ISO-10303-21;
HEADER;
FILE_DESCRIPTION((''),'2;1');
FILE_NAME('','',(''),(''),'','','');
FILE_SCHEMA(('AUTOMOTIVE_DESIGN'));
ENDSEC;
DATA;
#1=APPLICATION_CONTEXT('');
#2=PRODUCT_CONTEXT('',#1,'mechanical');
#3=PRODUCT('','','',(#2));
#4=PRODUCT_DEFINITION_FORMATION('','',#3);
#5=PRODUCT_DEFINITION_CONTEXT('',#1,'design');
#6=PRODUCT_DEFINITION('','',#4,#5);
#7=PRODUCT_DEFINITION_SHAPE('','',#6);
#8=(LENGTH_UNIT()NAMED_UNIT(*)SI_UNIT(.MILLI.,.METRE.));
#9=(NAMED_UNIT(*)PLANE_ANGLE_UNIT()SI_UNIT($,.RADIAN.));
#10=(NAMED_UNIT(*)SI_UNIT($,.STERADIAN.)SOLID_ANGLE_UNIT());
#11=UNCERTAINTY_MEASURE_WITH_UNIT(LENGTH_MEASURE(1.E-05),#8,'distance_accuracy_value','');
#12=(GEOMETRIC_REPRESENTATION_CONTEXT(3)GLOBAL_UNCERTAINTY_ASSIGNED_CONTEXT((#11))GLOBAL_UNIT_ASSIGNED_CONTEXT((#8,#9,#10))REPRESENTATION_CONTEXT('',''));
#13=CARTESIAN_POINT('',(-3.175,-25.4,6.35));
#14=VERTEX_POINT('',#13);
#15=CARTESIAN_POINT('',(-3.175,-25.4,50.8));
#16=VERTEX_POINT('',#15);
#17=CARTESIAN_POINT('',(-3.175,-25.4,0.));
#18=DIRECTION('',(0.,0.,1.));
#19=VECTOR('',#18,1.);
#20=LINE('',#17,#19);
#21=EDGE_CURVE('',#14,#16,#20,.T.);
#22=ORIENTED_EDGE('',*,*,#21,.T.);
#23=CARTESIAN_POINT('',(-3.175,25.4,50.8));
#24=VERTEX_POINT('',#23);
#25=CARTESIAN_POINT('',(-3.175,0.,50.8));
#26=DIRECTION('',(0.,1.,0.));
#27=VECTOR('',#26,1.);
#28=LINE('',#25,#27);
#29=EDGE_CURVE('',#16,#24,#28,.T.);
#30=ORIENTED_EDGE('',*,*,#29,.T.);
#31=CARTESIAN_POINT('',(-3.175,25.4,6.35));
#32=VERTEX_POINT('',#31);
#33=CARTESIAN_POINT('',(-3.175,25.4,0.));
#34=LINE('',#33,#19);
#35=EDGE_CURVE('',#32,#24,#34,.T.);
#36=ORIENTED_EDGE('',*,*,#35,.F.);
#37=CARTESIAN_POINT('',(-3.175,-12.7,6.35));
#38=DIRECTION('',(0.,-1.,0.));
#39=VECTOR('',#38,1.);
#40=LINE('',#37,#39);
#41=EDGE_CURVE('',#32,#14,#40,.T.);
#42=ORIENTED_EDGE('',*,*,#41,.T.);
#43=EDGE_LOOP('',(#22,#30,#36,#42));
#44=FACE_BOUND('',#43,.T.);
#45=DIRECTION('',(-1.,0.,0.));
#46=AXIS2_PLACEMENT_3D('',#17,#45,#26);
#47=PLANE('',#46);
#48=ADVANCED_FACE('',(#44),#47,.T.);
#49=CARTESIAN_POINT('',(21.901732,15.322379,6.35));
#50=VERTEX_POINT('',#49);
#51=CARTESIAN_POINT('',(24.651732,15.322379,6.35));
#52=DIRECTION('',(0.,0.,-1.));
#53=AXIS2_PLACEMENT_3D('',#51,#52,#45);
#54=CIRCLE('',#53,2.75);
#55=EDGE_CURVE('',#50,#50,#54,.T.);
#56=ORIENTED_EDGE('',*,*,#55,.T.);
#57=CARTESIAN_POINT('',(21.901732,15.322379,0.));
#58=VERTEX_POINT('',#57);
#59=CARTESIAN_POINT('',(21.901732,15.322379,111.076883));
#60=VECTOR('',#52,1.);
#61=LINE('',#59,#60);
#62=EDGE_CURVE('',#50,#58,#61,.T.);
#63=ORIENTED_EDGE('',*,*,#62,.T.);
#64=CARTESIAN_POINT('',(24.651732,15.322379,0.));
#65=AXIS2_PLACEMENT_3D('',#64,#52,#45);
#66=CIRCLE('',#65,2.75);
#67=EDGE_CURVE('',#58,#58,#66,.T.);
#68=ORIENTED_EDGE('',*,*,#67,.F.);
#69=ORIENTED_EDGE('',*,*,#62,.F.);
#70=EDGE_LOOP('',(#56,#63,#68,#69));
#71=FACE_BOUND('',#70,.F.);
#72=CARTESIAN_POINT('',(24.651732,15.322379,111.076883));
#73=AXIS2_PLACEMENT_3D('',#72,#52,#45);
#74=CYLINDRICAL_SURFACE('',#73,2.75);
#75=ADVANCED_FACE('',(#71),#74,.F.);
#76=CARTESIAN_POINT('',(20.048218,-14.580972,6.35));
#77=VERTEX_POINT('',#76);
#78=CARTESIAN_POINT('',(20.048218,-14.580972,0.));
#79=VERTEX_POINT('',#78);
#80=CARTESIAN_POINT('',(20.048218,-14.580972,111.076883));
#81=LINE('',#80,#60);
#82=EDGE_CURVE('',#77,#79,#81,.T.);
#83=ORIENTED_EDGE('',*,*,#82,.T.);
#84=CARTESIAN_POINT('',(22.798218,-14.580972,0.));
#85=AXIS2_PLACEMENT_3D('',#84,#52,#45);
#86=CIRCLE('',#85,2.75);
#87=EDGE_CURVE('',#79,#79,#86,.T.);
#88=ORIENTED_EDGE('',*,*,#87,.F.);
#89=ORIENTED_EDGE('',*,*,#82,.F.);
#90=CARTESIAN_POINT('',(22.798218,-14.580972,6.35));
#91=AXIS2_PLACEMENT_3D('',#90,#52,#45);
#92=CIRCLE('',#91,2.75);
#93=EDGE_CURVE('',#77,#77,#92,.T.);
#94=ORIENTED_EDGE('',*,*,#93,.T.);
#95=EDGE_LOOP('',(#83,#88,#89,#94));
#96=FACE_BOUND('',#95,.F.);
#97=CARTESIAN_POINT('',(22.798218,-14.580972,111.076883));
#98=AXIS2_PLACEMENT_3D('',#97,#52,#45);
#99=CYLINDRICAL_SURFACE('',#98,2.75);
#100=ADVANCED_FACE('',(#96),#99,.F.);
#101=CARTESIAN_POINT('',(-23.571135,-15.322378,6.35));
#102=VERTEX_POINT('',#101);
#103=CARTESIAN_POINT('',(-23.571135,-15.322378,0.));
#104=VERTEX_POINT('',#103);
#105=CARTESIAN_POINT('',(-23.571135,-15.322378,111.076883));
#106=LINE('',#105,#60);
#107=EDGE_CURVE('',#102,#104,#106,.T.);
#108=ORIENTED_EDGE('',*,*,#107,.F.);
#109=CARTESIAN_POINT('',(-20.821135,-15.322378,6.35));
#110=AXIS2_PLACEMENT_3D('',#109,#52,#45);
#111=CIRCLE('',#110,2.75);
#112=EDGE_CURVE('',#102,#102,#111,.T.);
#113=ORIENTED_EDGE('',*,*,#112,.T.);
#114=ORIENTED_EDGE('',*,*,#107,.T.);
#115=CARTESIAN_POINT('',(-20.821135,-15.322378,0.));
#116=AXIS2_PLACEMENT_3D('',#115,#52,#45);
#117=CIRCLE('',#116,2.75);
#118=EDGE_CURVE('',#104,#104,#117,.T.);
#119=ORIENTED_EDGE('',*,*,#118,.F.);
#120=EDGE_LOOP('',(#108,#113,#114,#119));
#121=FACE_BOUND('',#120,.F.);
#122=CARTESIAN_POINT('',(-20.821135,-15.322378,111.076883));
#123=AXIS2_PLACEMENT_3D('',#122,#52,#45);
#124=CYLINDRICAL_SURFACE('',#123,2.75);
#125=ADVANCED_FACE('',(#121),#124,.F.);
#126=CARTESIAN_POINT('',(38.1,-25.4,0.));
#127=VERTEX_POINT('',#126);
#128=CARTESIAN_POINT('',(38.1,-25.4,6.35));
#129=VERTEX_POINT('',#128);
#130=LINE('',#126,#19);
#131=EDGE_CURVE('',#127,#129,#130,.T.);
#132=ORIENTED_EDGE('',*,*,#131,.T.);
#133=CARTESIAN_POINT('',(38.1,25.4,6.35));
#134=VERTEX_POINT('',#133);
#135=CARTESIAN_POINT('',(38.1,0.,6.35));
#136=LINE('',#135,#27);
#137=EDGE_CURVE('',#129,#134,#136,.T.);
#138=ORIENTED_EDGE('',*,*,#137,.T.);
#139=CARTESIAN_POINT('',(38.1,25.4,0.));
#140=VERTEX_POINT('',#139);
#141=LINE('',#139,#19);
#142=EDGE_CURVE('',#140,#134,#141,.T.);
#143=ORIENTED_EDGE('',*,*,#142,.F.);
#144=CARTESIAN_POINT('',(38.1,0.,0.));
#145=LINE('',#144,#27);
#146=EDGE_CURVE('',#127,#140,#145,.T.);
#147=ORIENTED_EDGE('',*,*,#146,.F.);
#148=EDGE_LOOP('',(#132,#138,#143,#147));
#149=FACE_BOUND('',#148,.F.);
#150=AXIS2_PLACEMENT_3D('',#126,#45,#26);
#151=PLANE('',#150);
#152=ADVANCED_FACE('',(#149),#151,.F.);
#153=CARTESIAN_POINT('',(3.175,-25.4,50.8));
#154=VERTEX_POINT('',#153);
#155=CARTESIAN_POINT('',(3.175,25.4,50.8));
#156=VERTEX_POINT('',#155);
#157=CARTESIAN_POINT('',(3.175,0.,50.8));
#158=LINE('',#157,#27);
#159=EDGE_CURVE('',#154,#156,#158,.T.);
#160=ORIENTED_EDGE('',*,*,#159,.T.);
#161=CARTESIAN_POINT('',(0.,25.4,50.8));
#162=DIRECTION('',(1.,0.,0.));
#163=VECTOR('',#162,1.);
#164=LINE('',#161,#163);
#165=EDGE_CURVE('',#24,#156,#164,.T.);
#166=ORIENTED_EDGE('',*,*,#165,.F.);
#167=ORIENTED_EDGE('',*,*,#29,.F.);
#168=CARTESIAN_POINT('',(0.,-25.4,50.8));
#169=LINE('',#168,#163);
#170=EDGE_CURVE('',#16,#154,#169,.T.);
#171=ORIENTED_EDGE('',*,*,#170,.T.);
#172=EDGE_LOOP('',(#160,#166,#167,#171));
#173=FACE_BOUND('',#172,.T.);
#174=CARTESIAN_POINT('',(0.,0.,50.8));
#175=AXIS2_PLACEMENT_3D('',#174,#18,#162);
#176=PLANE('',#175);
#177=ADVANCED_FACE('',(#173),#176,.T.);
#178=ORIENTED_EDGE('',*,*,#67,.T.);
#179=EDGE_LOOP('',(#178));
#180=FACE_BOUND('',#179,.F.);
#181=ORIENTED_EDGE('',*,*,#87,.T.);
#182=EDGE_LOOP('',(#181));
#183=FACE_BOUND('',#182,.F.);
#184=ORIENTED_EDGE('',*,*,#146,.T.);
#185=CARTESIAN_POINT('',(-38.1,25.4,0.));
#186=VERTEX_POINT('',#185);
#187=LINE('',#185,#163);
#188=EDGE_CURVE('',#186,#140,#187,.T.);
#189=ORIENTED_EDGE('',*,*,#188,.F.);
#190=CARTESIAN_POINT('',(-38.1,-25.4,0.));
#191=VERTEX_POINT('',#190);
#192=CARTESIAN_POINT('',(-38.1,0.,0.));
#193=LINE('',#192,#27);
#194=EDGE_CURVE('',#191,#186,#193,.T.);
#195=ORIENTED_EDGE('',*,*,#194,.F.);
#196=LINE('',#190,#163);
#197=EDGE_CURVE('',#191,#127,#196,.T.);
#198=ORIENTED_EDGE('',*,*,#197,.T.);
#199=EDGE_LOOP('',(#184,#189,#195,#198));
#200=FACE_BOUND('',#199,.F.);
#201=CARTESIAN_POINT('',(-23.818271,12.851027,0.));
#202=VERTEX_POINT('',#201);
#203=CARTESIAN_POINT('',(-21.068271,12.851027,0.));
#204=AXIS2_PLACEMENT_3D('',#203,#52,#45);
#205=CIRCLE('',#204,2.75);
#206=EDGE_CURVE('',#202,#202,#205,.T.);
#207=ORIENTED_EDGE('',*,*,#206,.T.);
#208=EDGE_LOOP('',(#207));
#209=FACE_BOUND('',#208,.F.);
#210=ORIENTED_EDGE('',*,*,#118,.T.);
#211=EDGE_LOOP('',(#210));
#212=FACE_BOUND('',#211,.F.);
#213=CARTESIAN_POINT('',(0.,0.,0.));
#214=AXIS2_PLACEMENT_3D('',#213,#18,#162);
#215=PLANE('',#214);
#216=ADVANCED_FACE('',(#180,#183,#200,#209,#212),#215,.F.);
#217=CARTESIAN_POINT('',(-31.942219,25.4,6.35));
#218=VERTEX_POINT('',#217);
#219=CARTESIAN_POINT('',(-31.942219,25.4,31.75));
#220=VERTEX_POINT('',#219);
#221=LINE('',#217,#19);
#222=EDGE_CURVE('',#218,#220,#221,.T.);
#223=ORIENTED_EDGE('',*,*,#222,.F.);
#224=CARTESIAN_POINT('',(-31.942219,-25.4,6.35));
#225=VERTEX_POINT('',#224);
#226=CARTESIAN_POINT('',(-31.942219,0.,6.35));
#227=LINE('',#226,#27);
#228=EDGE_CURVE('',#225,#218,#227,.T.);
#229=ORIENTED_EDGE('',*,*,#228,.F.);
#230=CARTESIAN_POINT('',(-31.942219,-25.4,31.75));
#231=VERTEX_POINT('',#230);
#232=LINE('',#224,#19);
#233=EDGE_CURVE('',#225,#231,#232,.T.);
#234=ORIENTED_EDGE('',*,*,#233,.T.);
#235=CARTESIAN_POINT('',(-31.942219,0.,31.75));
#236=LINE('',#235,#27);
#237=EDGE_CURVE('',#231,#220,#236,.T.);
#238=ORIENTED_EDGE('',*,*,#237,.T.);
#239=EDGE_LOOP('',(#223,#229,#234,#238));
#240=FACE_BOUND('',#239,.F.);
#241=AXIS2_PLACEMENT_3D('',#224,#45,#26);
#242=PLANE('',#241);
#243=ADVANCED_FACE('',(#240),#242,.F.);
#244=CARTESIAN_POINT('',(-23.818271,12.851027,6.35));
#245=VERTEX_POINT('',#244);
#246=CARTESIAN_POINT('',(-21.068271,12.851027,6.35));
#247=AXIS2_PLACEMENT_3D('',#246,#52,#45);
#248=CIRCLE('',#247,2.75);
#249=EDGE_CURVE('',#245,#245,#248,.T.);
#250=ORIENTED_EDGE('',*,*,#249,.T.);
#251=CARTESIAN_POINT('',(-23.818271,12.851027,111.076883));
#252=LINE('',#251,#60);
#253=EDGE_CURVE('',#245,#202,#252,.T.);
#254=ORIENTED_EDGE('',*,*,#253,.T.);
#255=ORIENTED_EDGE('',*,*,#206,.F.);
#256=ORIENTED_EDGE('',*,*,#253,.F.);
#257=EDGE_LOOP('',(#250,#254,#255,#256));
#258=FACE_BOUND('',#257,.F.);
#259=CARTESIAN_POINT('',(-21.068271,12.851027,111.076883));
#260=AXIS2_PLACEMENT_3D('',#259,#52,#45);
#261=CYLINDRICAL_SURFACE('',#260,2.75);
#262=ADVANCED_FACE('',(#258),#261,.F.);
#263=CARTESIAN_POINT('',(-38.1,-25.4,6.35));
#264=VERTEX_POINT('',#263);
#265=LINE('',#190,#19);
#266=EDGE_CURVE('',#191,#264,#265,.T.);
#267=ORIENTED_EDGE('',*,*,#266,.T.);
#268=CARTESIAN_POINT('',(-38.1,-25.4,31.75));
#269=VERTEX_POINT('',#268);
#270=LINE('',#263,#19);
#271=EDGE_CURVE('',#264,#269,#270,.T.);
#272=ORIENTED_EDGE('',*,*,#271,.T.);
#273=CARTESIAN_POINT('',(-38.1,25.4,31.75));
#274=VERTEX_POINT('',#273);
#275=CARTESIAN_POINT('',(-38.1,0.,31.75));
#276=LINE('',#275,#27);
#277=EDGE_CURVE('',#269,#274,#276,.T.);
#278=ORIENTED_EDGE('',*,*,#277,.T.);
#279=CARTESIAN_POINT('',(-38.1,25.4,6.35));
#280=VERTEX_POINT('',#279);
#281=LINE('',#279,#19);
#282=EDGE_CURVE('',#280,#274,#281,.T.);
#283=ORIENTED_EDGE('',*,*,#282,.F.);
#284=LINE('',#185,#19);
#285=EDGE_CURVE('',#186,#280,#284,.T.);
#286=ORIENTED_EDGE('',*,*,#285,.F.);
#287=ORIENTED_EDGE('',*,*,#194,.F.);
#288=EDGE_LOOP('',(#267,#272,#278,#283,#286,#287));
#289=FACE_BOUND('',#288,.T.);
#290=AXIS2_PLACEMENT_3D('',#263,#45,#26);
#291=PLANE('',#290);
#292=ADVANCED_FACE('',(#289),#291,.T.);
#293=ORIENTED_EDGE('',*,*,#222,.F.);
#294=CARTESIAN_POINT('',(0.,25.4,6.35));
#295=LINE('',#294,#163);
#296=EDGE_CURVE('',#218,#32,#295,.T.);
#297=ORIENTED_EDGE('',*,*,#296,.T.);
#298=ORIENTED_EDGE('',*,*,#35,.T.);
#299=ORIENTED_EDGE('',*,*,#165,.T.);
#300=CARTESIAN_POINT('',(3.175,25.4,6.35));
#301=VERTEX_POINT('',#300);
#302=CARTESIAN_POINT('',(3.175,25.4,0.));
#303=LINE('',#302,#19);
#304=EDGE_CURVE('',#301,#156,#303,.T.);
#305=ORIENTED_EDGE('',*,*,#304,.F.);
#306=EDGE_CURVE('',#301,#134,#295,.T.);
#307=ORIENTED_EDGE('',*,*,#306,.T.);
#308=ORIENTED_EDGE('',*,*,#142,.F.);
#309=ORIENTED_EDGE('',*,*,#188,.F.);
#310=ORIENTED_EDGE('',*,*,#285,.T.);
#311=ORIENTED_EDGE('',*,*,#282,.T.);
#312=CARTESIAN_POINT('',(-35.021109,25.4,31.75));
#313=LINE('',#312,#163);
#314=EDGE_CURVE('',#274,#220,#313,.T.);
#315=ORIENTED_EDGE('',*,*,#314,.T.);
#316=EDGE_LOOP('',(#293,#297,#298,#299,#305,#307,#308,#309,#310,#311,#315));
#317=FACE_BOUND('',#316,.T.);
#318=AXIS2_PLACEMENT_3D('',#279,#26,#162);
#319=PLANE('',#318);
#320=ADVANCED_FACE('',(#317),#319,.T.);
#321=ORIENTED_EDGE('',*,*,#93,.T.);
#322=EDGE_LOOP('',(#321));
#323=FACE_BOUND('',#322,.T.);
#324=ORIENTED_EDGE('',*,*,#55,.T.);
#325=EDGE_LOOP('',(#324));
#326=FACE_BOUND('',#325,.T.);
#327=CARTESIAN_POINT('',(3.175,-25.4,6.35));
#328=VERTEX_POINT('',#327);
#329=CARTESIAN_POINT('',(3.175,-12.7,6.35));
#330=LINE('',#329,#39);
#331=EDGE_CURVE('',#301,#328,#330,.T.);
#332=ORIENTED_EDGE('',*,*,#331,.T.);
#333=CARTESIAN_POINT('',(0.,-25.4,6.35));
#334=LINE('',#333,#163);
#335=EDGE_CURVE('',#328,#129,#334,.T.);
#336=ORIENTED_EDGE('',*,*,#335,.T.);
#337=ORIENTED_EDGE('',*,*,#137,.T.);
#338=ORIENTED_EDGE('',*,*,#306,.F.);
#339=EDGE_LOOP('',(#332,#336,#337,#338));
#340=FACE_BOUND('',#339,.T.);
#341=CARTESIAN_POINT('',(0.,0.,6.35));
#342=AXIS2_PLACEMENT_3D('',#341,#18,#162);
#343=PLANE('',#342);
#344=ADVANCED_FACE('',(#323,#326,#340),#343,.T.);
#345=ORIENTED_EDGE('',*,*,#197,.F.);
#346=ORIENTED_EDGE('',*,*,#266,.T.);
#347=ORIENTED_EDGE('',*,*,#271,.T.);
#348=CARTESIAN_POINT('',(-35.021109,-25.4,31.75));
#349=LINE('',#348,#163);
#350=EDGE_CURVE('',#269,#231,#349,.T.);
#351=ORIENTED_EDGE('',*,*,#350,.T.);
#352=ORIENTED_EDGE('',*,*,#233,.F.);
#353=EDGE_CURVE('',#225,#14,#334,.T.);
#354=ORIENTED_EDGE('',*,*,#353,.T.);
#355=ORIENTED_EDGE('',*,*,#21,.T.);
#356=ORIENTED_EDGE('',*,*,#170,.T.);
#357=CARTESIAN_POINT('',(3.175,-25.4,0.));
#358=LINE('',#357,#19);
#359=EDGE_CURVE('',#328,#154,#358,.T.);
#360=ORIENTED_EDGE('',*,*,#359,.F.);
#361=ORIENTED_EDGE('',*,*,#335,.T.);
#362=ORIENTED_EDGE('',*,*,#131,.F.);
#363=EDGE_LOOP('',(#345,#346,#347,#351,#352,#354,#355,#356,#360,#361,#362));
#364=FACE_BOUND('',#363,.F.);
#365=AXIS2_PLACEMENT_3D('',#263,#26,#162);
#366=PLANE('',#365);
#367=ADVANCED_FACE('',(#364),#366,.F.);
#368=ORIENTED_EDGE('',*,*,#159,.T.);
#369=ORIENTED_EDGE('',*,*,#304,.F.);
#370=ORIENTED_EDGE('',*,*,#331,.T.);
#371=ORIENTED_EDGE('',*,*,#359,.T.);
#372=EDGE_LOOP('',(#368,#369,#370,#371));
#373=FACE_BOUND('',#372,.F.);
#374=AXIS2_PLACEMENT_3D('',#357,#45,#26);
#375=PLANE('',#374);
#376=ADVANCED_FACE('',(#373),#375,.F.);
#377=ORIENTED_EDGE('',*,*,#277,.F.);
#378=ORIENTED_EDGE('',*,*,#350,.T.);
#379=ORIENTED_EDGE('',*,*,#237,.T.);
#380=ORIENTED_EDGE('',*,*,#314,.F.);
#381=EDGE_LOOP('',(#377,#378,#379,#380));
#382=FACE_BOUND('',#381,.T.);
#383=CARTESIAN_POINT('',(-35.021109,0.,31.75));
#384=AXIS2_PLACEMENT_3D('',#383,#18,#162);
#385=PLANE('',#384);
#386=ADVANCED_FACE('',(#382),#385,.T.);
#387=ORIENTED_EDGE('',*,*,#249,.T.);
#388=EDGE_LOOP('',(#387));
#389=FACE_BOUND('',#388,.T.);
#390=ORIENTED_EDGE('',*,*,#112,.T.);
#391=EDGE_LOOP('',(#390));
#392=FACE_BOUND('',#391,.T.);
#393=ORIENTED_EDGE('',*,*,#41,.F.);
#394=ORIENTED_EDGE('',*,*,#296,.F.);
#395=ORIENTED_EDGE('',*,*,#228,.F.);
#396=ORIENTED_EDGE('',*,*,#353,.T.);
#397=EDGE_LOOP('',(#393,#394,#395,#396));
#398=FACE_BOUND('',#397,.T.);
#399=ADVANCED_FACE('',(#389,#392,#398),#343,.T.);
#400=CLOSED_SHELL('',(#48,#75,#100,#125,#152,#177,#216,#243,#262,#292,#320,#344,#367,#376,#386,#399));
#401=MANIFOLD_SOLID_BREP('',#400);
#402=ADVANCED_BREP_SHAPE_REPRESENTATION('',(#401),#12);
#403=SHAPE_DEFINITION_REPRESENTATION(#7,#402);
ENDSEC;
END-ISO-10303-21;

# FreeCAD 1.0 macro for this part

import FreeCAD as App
import Part
import Sketcher
from FreeCAD import Vector
Q = App.Units.Quantity

doc = App.newDocument("Part")
params = doc.addObject("Spreadsheet::Sheet", "Params")
for row, (alias, value) in enumerate([
    ("sketch1_width", "3 in"),
    ("sketch1_height", "2 in"),
    ("pad1_length", "0.25 in"),
    ("sketch2_height", "2 in"),
    ("sketch2_width", "0.25 in"),
    ("pad2_length", "2 in"),
    ("hole_diameter", "5.5 mm"),
    ("sketch4_height", "2 in"),
    ("pad3_length", "1 in"),
], start=1):
    params.set(f"A{row}", alias)
    params.set(f"B{row}", "=" + value)
    params.setAlias(f"B{row}", alias)

body = doc.addObject("PartDesign::Body", "Body")

sketch1 = body.newObject("Sketcher::SketchObject", "Sketch")
sketch1.AttachmentSupport = (doc.getObject("XY_Plane"), [""])
sketch1.MapMode = "FlatFace"
sketch1.addGeometry(Part.LineSegment(Vector(-38.1, 25.4, 0), Vector(-38.1, -25.4, 0)), False)
sketch1.addGeometry(Part.LineSegment(Vector(-38.1, -25.4, 0), Vector(38.1, -25.4, 0)), False)
sketch1.addGeometry(Part.LineSegment(Vector(38.1, -25.4, 0), Vector(38.1, 25.4, 0)), False)
sketch1.addGeometry(Part.LineSegment(Vector(38.1, 25.4, 0), Vector(-38.1, 25.4, 0)), False)
sketch1.addConstraint(Sketcher.Constraint("Coincident", 0, 2, 1, 1))
sketch1.addConstraint(Sketcher.Constraint("Coincident", 1, 2, 2, 1))
sketch1.addConstraint(Sketcher.Constraint("Coincident", 2, 2, 3, 1))
sketch1.addConstraint(Sketcher.Constraint("Coincident", 3, 2, 0, 1))
sketch1.addConstraint(Sketcher.Constraint("Vertical", 0))
sketch1.addConstraint(Sketcher.Constraint("Horizontal", 1))
sketch1.addConstraint(Sketcher.Constraint("Vertical", 2))
sketch1.addConstraint(Sketcher.Constraint("Horizontal", 3))
sketch1.addConstraint(Sketcher.Constraint("Symmetric", 0, 2, 2, 2, -1, 1))
sketch1.addConstraint(Sketcher.Constraint("DistanceX", 1, 1, 1, 2, Q("3 in")))
sketch1.addConstraint(Sketcher.Constraint("DistanceY", 0, 2, 0, 1, Q("2 in")))
sketch1.setExpression("Constraints[9]", "Params.sketch1_width")
sketch1.setExpression("Constraints[10]", "Params.sketch1_height")
pad1 = body.newObject("PartDesign::Pad", "Pad")
pad1.Profile = sketch1
pad1.setExpression("Length", "Params.pad1_length")

sketch2 = body.newObject("Sketcher::SketchObject", "Sketch001")
sketch2.AttachmentSupport = (doc.getObject("XY_Plane"), [""])
sketch2.MapMode = "FlatFace"
sketch2.addGeometry(Part.LineSegment(Vector(-3.175, 25.4, 0), Vector(-3.175, -25.4, 0)), False)
sketch2.addGeometry(Part.LineSegment(Vector(-3.175, -25.4, 0), Vector(3.175, -25.4, 0)), False)
sketch2.addGeometry(Part.LineSegment(Vector(3.175, -25.4, 0), Vector(3.175, 25.4, 0)), False)
sketch2.addGeometry(Part.LineSegment(Vector(3.175, 25.4, 0), Vector(-3.175, 25.4, 0)), False)
sketch2.addConstraint(Sketcher.Constraint("Coincident", 0, 2, 1, 1))
sketch2.addConstraint(Sketcher.Constraint("Coincident", 1, 2, 2, 1))
sketch2.addConstraint(Sketcher.Constraint("Coincident", 2, 2, 3, 1))
sketch2.addConstraint(Sketcher.Constraint("Coincident", 3, 2, 0, 1))
sketch2.addConstraint(Sketcher.Constraint("Vertical", 0))
sketch2.addConstraint(Sketcher.Constraint("Horizontal", 1))
sketch2.addConstraint(Sketcher.Constraint("Vertical", 2))
sketch2.addConstraint(Sketcher.Constraint("Horizontal", 3))
sketch2.addConstraint(Sketcher.Constraint("Symmetric", 0, 2, 2, 2, -1, 1))
sketch2.addConstraint(Sketcher.Constraint("DistanceY", 0, 2, 0, 1, Q("2 in")))
sketch2.addConstraint(Sketcher.Constraint("DistanceX", 1, 1, 1, 2, Q("0.25 in")))
sketch2.setExpression("Constraints[9]", "Params.sketch2_height")
sketch2.setExpression("Constraints[10]", "Params.sketch2_width")
pad2 = body.newObject("PartDesign::Pad", "Pad001")
pad2.Profile = sketch2
pad2.setExpression("Length", "Params.pad2_length")

sketch3 = body.newObject("Sketcher::SketchObject", "Sketch002")
sketch3.AttachmentSupport = (doc.getObject("XY_Plane"), [""])
sketch3.MapMode = "FlatFace"
sketch3.AttachmentOffset = App.Placement(Vector(0, 0, 0.25 * 25.4), App.Rotation())
sketch3.addGeometry(Part.Circle(Vector(-21.068271, 12.851027, 0), Vector(0, 0, 1), 2.75), False)
sketch3.addGeometry(Part.Circle(Vector(-20.821135, -15.322378, 0), Vector(0, 0, 1), 2.75), False)
sketch3.addGeometry(Part.Circle(Vector(22.798218, -14.580972, 0), Vector(0, 0, 1), 2.75), False)
sketch3.addGeometry(Part.Circle(Vector(24.651732, 15.322379, 0), Vector(0, 0, 1), 2.75), False)
sketch3.addConstraint(Sketcher.Constraint("Equal", 0, 1))
sketch3.addConstraint(Sketcher.Constraint("Equal", 1, 2))
sketch3.addConstraint(Sketcher.Constraint("Equal", 2, 3))
sketch3.addConstraint(Sketcher.Constraint("DistanceX", 0, 3, 3, 3, Q("1.8000001 in")))
sketch3.addConstraint(Sketcher.Constraint("Diameter", 0, Q("5.5 mm")))
sketch3.addConstraint(Sketcher.Constraint("DistanceY", 2, 3, 0, 3, Q("1.08 in")))
sketch3.addConstraint(Sketcher.Constraint("DistanceX", 0, 3, -1, 1, Q("21.068271 mm")))
sketch3.addConstraint(Sketcher.Constraint("DistanceY", -1, 1, 3, 3, Q("15.322379 mm")))
sketch3.addConstraint(Sketcher.Constraint("DistanceX", 0, 3, 2, 3, Q("43.866489 mm")))
sketch3.addConstraint(Sketcher.Constraint("DistanceY", 2, 3, 3, 3, Q("29.903351 mm")))
sketch3.addConstraint(Sketcher.Constraint("DistanceX", 1, 3, -1, 1, Q("20.821135 mm")))
sketch3.addConstraint(Sketcher.Constraint("DistanceY", 1, 3, -1, 1, Q("15.322378 mm")))
doc.recompute()
hole = body.newObject("PartDesign::Hole", "Hole")
hole.Profile = sketch3
hole.ThreadType = "None"
hole.setExpression("Diameter", "Params.hole_diameter")
hole.DepthType = "ThroughAll"

sketch4 = body.newObject("Sketcher::SketchObject", "Sketch003")
sketch4.AttachmentSupport = (doc.getObject("XY_Plane"), [""])
sketch4.MapMode = "FlatFace"
sketch4.AttachmentOffset = App.Placement(Vector(0, 0, 0.25 * 25.4), App.Rotation())
sketch4.addGeometry(Part.LineSegment(Vector(-38.1, 25.4, 0), Vector(-38.1, -25.4, 0)), False)
sketch4.addGeometry(Part.LineSegment(Vector(-38.1, -25.4, 0), Vector(-31.942219, -25.4, 0)), False)
sketch4.addGeometry(Part.LineSegment(Vector(-31.942219, -25.4, 0), Vector(-31.942219, 25.4, 0)), False)
sketch4.addGeometry(Part.LineSegment(Vector(-31.942219, 25.4, 0), Vector(-38.1, 25.4, 0)), False)
sketch4.addConstraint(Sketcher.Constraint("Coincident", 0, 2, 1, 1))
sketch4.addConstraint(Sketcher.Constraint("Coincident", 1, 2, 2, 1))
sketch4.addConstraint(Sketcher.Constraint("Coincident", 2, 2, 3, 1))
sketch4.addConstraint(Sketcher.Constraint("Coincident", 3, 2, 0, 1))
sketch4.addConstraint(Sketcher.Constraint("Vertical", 0))
sketch4.addConstraint(Sketcher.Constraint("Horizontal", 1))
sketch4.addConstraint(Sketcher.Constraint("Vertical", 2))
sketch4.addConstraint(Sketcher.Constraint("Horizontal", 3))
sketch4.addConstraint(Sketcher.Constraint("DistanceY", 0, 2, 0, 1, Q("2 in")))
sketch4.addConstraint(Sketcher.Constraint("DistanceY", 0, 2, -1, 1, Q("1 in")))
sketch4.addConstraint(Sketcher.Constraint("DistanceX", 0, 2, -1, 1, Q("1.5 in")))
sketch4.addConstraint(Sketcher.Constraint("DistanceX", 1, 1, 1, 2, Q("6.157781 mm")))
sketch4.setExpression("Constraints[8]", "Params.sketch4_height")
pad3 = body.newObject("PartDesign::Pad", "Pad002")
pad3.Profile = sketch4
pad3.setExpression("Length", "Params.pad3_length")

doc.recompute()
